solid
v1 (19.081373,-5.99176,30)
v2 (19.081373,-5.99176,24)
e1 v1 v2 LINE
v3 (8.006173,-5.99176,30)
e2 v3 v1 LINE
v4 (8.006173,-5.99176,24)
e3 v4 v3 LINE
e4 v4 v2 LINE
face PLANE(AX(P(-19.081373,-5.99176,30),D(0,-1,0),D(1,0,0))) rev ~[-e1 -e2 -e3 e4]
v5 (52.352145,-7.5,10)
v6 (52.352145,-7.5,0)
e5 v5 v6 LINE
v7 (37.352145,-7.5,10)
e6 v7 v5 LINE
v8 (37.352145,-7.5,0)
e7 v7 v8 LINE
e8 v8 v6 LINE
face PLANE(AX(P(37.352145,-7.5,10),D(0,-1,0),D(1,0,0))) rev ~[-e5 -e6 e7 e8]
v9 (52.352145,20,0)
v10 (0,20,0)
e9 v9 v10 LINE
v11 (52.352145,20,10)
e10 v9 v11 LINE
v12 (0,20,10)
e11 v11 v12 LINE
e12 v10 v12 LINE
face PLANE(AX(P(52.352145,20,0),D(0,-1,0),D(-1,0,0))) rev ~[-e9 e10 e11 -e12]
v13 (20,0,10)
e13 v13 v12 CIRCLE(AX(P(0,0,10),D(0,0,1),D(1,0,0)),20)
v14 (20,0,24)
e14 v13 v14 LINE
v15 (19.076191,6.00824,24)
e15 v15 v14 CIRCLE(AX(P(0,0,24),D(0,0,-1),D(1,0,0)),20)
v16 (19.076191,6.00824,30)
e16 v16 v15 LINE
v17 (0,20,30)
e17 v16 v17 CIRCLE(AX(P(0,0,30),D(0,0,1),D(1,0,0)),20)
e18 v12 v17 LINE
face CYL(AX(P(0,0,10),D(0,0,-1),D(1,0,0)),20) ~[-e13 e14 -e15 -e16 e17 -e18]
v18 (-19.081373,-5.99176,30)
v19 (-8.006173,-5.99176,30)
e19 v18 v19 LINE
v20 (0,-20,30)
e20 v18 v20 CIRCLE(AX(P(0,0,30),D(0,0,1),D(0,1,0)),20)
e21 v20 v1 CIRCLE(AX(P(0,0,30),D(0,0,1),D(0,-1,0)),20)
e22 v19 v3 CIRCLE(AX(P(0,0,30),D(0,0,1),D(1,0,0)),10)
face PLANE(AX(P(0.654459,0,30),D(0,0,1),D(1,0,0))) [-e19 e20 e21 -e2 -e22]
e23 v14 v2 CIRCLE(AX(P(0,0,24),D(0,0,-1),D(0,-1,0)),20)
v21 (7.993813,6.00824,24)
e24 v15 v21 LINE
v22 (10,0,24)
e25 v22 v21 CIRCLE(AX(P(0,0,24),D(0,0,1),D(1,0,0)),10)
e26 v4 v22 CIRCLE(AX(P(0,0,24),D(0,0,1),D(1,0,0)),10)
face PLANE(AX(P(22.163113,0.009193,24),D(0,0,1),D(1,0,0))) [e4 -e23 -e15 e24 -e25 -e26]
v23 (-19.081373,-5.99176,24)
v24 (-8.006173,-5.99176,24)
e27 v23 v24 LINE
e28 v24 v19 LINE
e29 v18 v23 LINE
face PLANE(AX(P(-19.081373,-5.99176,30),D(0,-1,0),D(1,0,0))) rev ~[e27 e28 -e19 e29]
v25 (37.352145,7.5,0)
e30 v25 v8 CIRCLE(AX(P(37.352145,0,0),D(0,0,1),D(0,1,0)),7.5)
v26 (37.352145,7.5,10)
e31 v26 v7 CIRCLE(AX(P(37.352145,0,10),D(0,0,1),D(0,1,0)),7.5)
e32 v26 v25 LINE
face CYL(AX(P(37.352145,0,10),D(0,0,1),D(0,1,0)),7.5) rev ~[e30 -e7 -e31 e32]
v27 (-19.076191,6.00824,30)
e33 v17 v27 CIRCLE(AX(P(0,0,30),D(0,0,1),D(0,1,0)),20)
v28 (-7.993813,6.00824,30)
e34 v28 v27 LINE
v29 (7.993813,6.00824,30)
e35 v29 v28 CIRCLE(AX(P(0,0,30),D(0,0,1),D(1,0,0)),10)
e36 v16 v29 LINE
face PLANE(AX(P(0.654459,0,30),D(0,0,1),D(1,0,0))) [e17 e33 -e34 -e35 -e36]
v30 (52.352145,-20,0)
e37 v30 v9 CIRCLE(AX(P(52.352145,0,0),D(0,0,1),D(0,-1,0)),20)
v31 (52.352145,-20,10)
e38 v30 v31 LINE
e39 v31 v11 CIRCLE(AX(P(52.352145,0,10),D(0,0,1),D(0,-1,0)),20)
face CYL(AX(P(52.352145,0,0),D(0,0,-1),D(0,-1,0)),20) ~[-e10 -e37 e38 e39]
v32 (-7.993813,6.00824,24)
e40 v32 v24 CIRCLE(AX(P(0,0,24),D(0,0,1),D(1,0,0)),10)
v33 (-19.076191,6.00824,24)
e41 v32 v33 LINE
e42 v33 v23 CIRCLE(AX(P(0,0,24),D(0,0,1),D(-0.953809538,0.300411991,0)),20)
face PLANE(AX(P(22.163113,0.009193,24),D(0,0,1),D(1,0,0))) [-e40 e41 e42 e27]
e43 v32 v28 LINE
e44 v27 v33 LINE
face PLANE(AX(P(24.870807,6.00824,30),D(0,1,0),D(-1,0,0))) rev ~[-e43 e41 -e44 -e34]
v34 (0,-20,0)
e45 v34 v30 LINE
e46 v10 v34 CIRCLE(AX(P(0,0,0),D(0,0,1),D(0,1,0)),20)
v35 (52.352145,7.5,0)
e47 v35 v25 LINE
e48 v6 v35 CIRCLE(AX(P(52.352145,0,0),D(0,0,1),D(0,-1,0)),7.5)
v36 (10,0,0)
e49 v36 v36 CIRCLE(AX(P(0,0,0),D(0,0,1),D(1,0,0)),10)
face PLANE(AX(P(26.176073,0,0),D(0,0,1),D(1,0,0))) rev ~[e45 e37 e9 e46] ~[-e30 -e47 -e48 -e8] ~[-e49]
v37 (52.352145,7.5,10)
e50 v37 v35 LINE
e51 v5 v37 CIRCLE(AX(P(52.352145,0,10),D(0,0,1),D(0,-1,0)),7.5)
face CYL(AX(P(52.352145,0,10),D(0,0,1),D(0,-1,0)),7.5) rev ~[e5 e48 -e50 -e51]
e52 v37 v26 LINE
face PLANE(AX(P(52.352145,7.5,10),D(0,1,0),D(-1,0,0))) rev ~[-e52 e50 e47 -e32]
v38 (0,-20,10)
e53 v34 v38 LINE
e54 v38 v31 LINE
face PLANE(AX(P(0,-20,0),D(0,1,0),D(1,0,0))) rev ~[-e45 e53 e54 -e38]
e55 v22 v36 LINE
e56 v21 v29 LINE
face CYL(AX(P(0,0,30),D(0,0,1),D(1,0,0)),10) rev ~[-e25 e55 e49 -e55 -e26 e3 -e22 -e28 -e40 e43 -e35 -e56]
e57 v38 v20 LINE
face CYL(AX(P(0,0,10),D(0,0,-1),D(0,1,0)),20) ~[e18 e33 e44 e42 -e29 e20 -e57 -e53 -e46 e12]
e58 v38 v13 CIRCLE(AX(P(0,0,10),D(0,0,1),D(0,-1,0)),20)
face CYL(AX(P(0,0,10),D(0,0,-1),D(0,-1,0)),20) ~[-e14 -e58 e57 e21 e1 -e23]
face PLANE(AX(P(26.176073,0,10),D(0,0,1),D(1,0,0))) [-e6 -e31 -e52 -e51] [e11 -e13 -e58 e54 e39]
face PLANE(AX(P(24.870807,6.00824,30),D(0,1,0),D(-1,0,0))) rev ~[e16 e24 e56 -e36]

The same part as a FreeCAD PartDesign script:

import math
import FreeCAD as App
import Part
import Sketcher

doc = App.newDocument("Part")
body = doc.addObject("PartDesign::Body", "Body")

sketch1 = body.newObject("Sketcher::SketchObject", "Sketch")
sketch1.AttachmentSupport = (doc.getObject("XY_Plane"), [""])
sketch1.MapMode = "FlatFace"
sketch1.addGeometry(Part.LineSegment(App.Vector(52, 20, 0), App.Vector(0, 20, 0)), False)
sketch1.addGeometry(Part.ArcOfCircle(Part.Circle(App.Vector(0, 0, 0), App.Vector(0, 0, 1), 20), math.radians(90), math.radians(270)), False)
sketch1.addGeometry(Part.LineSegment(App.Vector(0, -20, 0), App.Vector(52, -20, 0)), False)
sketch1.addGeometry(Part.ArcOfCircle(Part.Circle(App.Vector(52, 0, 0), App.Vector(0, 0, 1), 20), math.radians(-90), math.radians(90)), False)
sketch1.addConstraint(Sketcher.Constraint("Tangent", 0, 2, 1, 1))
sketch1.addConstraint(Sketcher.Constraint("Tangent", 1, 2, 2, 1))
sketch1.addConstraint(Sketcher.Constraint("Tangent", 2, 2, 3, 1))
sketch1.addConstraint(Sketcher.Constraint("Tangent", 3, 2, 0, 1))
sketch1.addConstraint(Sketcher.Constraint("Horizontal", 0))
sketch1.addConstraint(Sketcher.Constraint("Horizontal", 2))
sketch1.addConstraint(Sketcher.Constraint("Coincident", 1, 3, -1, 1))
sketch1.addConstraint(Sketcher.Constraint("Radius", 1, 20.0))
sketch1.addConstraint(Sketcher.Constraint("DistanceX", 0, 2, 0, 1, 52.352145))
pad1 = body.newObject("PartDesign::Pad", "Pad")
pad1.Profile = sketch1
pad1.Length = 10

sketch2 = body.newObject("Sketcher::SketchObject", "Sketch001")
sketch2.AttachmentSupport = (doc.getObject("XY_Plane"), [""])
sketch2.MapMode = "FlatFace"
sketch2.AttachmentOffset = App.Placement(App.Vector(0, 0, 10), App.Rotation())
sketch2.addGeometry(Part.ArcOfCircle(Part.Circle(App.Vector(0, 0, 0), App.Vector(0, 0, 1), 20), math.radians(-90), math.radians(0)), False)
sketch2.addGeometry(Part.ArcOfCircle(Part.Circle(App.Vector(0, 0, 0), App.Vector(0, 0, 1), 20), math.radians(0), math.radians(90)), False)
sketch2.addGeometry(Part.ArcOfCircle(Part.Circle(App.Vector(0, 0, 0), App.Vector(0, 0, 1), 20), math.radians(90), math.radians(270)), False)
sketch2.addConstraint(Sketcher.Constraint("Tangent", 0, 2, 1, 1))
sketch2.addConstraint(Sketcher.Constraint("Tangent", 1, 2, 2, 1))
sketch2.addConstraint(Sketcher.Constraint("Tangent", 2, 2, 0, 1))
sketch2.addConstraint(Sketcher.Constraint("Coincident", 0, 3, -1, 1))
sketch2.addConstraint(Sketcher.Constraint("PointOnObject", 0, 2, -1))
sketch2.addConstraint(Sketcher.Constraint("PointOnObject", 1, 2, -2))
sketch2.addConstraint(Sketcher.Constraint("PointOnObject", 2, 2, -2))
sketch2.addConstraint(Sketcher.Constraint("Radius", 0, 20.0))
pad2 = body.newObject("PartDesign::Pad", "Pad001")
pad2.Profile = sketch2
pad2.Length = 20

sketch3 = body.newObject("Sketcher::SketchObject", "Sketch002")
sketch3.AttachmentSupport = (doc.getObject("XY_Plane"), [""])
sketch3.MapMode = "FlatFace"
sketch3.AttachmentOffset = App.Placement(App.Vector(0, 0, 30), App.Rotation())
sketch3.addGeometry(Part.Circle(App.Vector(0, 0, 0), App.Vector(0, 0, 1), 10), False)
sketch3.addConstraint(Sketcher.Constraint("Coincident", 0, 3, -1, 1))
sketch3.addConstraint(Sketcher.Constraint("Diameter", 0, 20.0))
pocket1 = body.newObject("PartDesign::Pocket", "Pocket")
pocket1.Profile = sketch3
pocket1.Length = 50

sketch4 = body.newObject("Sketcher::SketchObject", "Sketch003")
sketch4.AttachmentSupport = (doc.getObject("XY_Plane"), [""])
sketch4.MapMode = "FlatFace"
sketch4.AttachmentOffset = App.Placement(App.Vector(0, 0, 30), App.Rotation())
sketch4.addGeometry(Part.LineSegment(App.Vector(25, 6, 0), App.Vector(-19, 6, 0)), False)
sketch4.addGeometry(Part.ArcOfCircle(Part.Circle(App.Vector(0, 0, 0), App.Vector(0, 0, 1), 20), math.radians(163), math.radians(197)), False)
sketch4.addGeometry(Part.LineSegment(App.Vector(-19, -6, 0), App.Vector(25, -6, 0)), False)
sketch4.addGeometry(Part.LineSegment(App.Vector(25, -6, 0), App.Vector(25, 6, 0)), False)
sketch4.addConstraint(Sketcher.Constraint("Coincident", 0, 2, 1, 1))
sketch4.addConstraint(Sketcher.Constraint("Coincident", 1, 2, 2, 1))
sketch4.addConstraint(Sketcher.Constraint("Coincident", 2, 2, 3, 1))
sketch4.addConstraint(Sketcher.Constraint("Coincident", 3, 2, 0, 1))
sketch4.addConstraint(Sketcher.Constraint("Horizontal", 0))
sketch4.addConstraint(Sketcher.Constraint("Horizontal", 2))
sketch4.addConstraint(Sketcher.Constraint("Vertical", 3))
sketch4.addConstraint(Sketcher.Constraint("Coincident", 1, 3, -1, 1))
sketch4.addConstraint(Sketcher.Constraint("Radius", 1, 20.0))
sketch4.addConstraint(Sketcher.Constraint("DistanceY", 3, 1, 3, 2, 12.0))
sketch4.addConstraint(Sketcher.Constraint("DistanceX", 0, 2, 0, 1, 43.946998))
sketch4.addConstraint(Sketcher.Constraint("DistanceX", 2, 1, 2, 2, 43.952181))
pocket2 = body.newObject("PartDesign::Pocket", "Pocket001")
pocket2.Profile = sketch4
pocket2.Length = 6

sketch5 = body.newObject("Sketcher::SketchObject", "Sketch004")
sketch5.AttachmentSupport = (doc.getObject("XY_Plane"), [""])
sketch5.MapMode = "FlatFace"
sketch5.AttachmentOffset = App.Placement(App.Vector(0, 0, 10), App.Rotation())
sketch5.addGeometry(Part.LineSegment(App.Vector(52, 8, 0), App.Vector(37, 8, 0)), False)
sketch5.addGeometry(Part.ArcOfCircle(Part.Circle(App.Vector(37, 0, 0), App.Vector(0, 0, 1), 8), math.radians(90), math.radians(270)), False)
sketch5.addGeometry(Part.LineSegment(App.Vector(37, -8, 0), App.Vector(52, -8, 0)), False)
sketch5.addGeometry(Part.ArcOfCircle(Part.Circle(App.Vector(52, 0, 0), App.Vector(0, 0, 1), 8), math.radians(-90), math.radians(90)), False)
sketch5.addConstraint(Sketcher.Constraint("Tangent", 0, 2, 1, 1))
sketch5.addConstraint(Sketcher.Constraint("Tangent", 1, 2, 2, 1))
sketch5.addConstraint(Sketcher.Constraint("Tangent", 2, 2, 3, 1))
sketch5.addConstraint(Sketcher.Constraint("Tangent", 3, 2, 0, 1))
sketch5.addConstraint(Sketcher.Constraint("Horizontal", 0))
sketch5.addConstraint(Sketcher.Constraint("Horizontal", 2))
sketch5.addConstraint(Sketcher.Constraint("PointOnObject", 1, 3, -1))
sketch5.addConstraint(Sketcher.Constraint("Radius", 1, 7.5))
sketch5.addConstraint(Sketcher.Constraint("DistanceX", 0, 2, 0, 1, 15.0))
sketch5.addConstraint(Sketcher.Constraint("DistanceX", -1, 1, 1, 3, 37.352145))
pocket3 = body.newObject("PartDesign::Pocket", "Pocket002")
pocket3.Profile = sketch5
pocket3.Length = 25

doc.recompute()
